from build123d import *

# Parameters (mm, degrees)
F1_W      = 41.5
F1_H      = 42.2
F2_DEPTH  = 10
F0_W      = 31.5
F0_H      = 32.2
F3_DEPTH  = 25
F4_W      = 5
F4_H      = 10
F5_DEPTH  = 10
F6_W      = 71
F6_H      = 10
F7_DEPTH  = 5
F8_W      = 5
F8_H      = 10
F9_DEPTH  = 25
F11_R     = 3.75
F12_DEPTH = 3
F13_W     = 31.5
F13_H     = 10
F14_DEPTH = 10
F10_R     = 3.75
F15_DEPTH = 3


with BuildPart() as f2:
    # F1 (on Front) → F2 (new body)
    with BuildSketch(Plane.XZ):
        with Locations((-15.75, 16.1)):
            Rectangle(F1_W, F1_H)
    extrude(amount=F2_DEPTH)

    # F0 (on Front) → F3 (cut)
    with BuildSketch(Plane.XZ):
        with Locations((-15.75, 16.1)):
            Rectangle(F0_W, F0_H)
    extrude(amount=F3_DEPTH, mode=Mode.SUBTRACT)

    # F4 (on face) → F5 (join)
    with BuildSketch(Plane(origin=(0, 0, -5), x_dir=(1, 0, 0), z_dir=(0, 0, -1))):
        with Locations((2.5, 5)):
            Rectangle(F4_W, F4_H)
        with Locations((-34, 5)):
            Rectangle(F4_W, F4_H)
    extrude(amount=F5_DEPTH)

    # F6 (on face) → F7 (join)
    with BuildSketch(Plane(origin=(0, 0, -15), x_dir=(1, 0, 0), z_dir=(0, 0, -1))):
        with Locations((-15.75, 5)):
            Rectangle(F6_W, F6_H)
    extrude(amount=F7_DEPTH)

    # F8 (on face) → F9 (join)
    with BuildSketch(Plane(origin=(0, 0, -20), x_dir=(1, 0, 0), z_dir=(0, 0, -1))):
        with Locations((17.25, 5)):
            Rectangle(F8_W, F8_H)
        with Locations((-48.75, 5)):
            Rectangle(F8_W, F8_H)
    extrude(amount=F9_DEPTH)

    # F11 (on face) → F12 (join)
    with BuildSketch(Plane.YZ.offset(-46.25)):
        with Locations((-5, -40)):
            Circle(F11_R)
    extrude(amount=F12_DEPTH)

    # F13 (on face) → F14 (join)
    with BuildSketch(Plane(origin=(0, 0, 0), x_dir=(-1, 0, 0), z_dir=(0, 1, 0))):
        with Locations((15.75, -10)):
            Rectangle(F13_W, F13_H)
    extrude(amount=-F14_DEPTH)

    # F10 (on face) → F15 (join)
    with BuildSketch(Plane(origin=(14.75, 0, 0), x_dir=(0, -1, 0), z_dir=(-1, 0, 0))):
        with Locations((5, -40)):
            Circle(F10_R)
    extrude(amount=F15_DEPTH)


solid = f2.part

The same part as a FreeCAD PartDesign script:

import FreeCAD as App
import Part
import Sketcher

doc = App.newDocument("Part")
body = doc.addObject("PartDesign::Body", "Body")

# Sketch on XZ plane
sketch1 = body.newObject("Sketcher::SketchObject", "Sketch")
sketch1.AttachmentSupport = (doc.getObject("XZ_Plane"), [""])
sketch1.MapMode = "FlatFace"
sketch1.addGeometry([
    Part.LineSegment(App.Vector(-36, 37, 0), App.Vector(-36, -5, 0)),
    Part.LineSegment(App.Vector(-36, -5, 0), App.Vector(5, -5, 0)),
    Part.LineSegment(App.Vector(5, -5, 0), App.Vector(5, 37, 0)),
    Part.LineSegment(App.Vector(5, 37, 0), App.Vector(-36, 37, 0)),
], False)
sketch1.addConstraint([
    Sketcher.Constraint("Coincident", 0, 2, 1, 1),
    Sketcher.Constraint("Coincident", 1, 2, 2, 1),
    Sketcher.Constraint("Coincident", 2, 2, 3, 1),
    Sketcher.Constraint("Coincident", 3, 2, 0, 1),
    Sketcher.Constraint("Vertical", 0),
    Sketcher.Constraint("Horizontal", 1),
    Sketcher.Constraint("Vertical", 2),
    Sketcher.Constraint("Horizontal", 3),
    Sketcher.Constraint("DistanceX", 1, 1, 1, 2, 41.5),
    Sketcher.Constraint("DistanceY", 0, 2, 0, 1, 42.2),
    Sketcher.Constraint("DistanceY", 0, 2, -1, 1, 5.0),
    Sketcher.Constraint("DistanceX", -1, 1, 1, 2, 5.0),
])
pad1 = body.newObject("PartDesign::Pad", "Pad")
pad1.Profile = sketch1
pad1.Length = 10

# Sketch on XZ plane
sketch2 = body.newObject("Sketcher::SketchObject", "Sketch001")
sketch2.AttachmentSupport = (doc.getObject("XZ_Plane"), [""])
sketch2.MapMode = "FlatFace"
sketch2.addGeometry([
    Part.LineSegment(App.Vector(-32, 32, 0), App.Vector(-32, 0, 0)),
    Part.LineSegment(App.Vector(-32, 0, 0), App.Vector(0, 0, 0)),
    Part.LineSegment(App.Vector(0, 0, 0), App.Vector(0, 32, 0)),
    Part.LineSegment(App.Vector(0, 32, 0), App.Vector(-32, 32, 0)),
], False)
sketch2.addConstraint([
    Sketcher.Constraint("Coincident", 0, 2, 1, 1),
    Sketcher.Constraint("Coincident", 1, 2, 2, 1),
    Sketcher.Constraint("Coincident", 2, 2, 3, 1),
    Sketcher.Constraint("Coincident", 3, 2, 0, 1),
    Sketcher.Constraint("Vertical", 0),
    Sketcher.Constraint("Horizontal", 1),
    Sketcher.Constraint("Vertical", 2),
    Sketcher.Constraint("Horizontal", 3),
    Sketcher.Constraint("Coincident", 1, 2, -1, 1),
    Sketcher.Constraint("DistanceX", 1, 1, 1, 2, 31.5),
    Sketcher.Constraint("DistanceY", 0, 2, 0, 1, 32.2),
])
pocket1 = body.newObject("PartDesign::Pocket", "Pocket")
pocket1.Profile = sketch2
pocket1.Length = 25
pocket1.Reversed = True

# Sketch on XY plane
sketch3 = body.newObject("Sketcher::SketchObject", "Sketch002")
sketch3.AttachmentSupport = (doc.getObject("XY_Plane"), [""])
sketch3.MapMode = "FlatFace"
sketch3.AttachmentOffset = App.Placement(App.Vector(0, 0, -5), App.Rotation())
sketch3.addGeometry([
    Part.LineSegment(App.Vector(0, -10, 0), App.Vector(0, 0, 0)),  # 0
    Part.LineSegment(App.Vector(0, 0, 0), App.Vector(5, 0, 0)),  # 1
    Part.LineSegment(App.Vector(5, 0, 0), App.Vector(5, -10, 0)),  # 2
    Part.LineSegment(App.Vector(5, -10, 0), App.Vector(0, -10, 0)),  # 3
    Part.LineSegment(App.Vector(-36, -10, 0), App.Vector(-36, 0, 0)),  # 4
    Part.LineSegment(App.Vector(-36, 0, 0), App.Vector(-32, 0, 0)),  # 5
    Part.LineSegment(App.Vector(-32, 0, 0), App.Vector(-32, -10, 0)),  # 6
    Part.LineSegment(App.Vector(-32, -10, 0), App.Vector(-36, -10, 0)),  # 7
], False)
sketch3.addConstraint([
    Sketcher.Constraint("Coincident", 0, 2, 1, 1),
    Sketcher.Constraint("Coincident", 1, 2, 2, 1),
    Sketcher.Constraint("Coincident", 2, 2, 3, 1),
    Sketcher.Constraint("Coincident", 3, 2, 0, 1),
    Sketcher.Constraint("Coincident", 4, 2, 5, 1),
    Sketcher.Constraint("Coincident", 5, 2, 6, 1),
    Sketcher.Constraint("Coincident", 6, 2, 7, 1),
    Sketcher.Constraint("Coincident", 7, 2, 4, 1),
    Sketcher.Constraint("Vertical", 0),
    Sketcher.Constraint("Horizontal", 1),
    Sketcher.Constraint("Vertical", 2),
    Sketcher.Constraint("Horizontal", 3),
    Sketcher.Constraint("Vertical", 4),
    Sketcher.Constraint("Horizontal", 5),
    Sketcher.Constraint("Vertical", 6),
    Sketcher.Constraint("Horizontal", 7),
    Sketcher.Constraint("Coincident", 0, 2, -1, 1),
    Sketcher.Constraint("PointOnObject", 4, 2, -1),
    Sketcher.Constraint("Horizontal", 3, 2, 6, 2),
    Sketcher.Constraint("Equal", 3, 5),
    Sketcher.Constraint("DistanceX", 1, 1, 1, 2, 5.0),
    Sketcher.Constraint("DistanceY", 0, 1, 0, 2, 10.0),
    Sketcher.Constraint("DistanceX", 4, 2, -1, 1, 36.5),
])
pad2 = body.newObject("PartDesign::Pad", "Pad001")
pad2.Profile = sketch3
pad2.Length = 10
pad2.Reversed = True

# Sketch on XY plane
sketch4 = body.newObject("Sketcher::SketchObject", "Sketch003")
sketch4.AttachmentSupport = (doc.getObject("XY_Plane"), [""])
sketch4.MapMode = "FlatFace"
sketch4.AttachmentOffset = App.Placement(App.Vector(0, 0, -15), App.Rotation())
sketch4.addGeometry([
    Part.LineSegment(App.Vector(-51, -10, 0), App.Vector(-51, 0, 0)),
    Part.LineSegment(App.Vector(-51, 0, 0), App.Vector(20, 0, 0)),
    Part.LineSegment(App.Vector(20, 0, 0), App.Vector(20, -10, 0)),
    Part.LineSegment(App.Vector(20, -10, 0), App.Vector(-51, -10, 0)),
], False)
sketch4.addConstraint([
    Sketcher.Constraint("Coincident", 0, 2, 1, 1),
    Sketcher.Constraint("Coincident", 1, 2, 2, 1),
    Sketcher.Constraint("Coincident", 2, 2, 3, 1),
    Sketcher.Constraint("Coincident", 3, 2, 0, 1),
    Sketcher.Constraint("Vertical", 0),
    Sketcher.Constraint("Horizontal", 1),
    Sketcher.Constraint("Vertical", 2),
    Sketcher.Constraint("Horizontal", 3),
    Sketcher.Constraint("PointOnObject", 0, 2, -1),
    Sketcher.Constraint("DistanceX", 1, 1, 1, 2, 71.0),
    Sketcher.Constraint("DistanceY", 0, 1, 0, 2, 10.0),
    Sketcher.Constraint("DistanceX", 0, 2, -1, 1, 51.25),
])
pad3 = body.newObject("PartDesign::Pad", "Pad002")
pad3.Profile = sketch4
pad3.Length = 5
pad3.Reversed = True

# Sketch on XY plane
sketch5 = body.newObject("Sketcher::SketchObject", "Sketch004")
sketch5.AttachmentSupport = (doc.getObject("XY_Plane"), [""])
sketch5.MapMode = "FlatFace"
sketch5.AttachmentOffset = App.Placement(App.Vector(0, 0, -20), App.Rotation())
sketch5.addGeometry([
    Part.LineSegment(App.Vector(15, -10, 0), App.Vector(15, 0, 0)),  # 0
    Part.LineSegment(App.Vector(15, 0, 0), App.Vector(20, 0, 0)),  # 1
    Part.LineSegment(App.Vector(20, 0, 0), App.Vector(20, -10, 0)),  # 2
    Part.LineSegment(App.Vector(20, -10, 0), App.Vector(15, -10, 0)),  # 3
    Part.LineSegment(App.Vector(-51, -10, 0), App.Vector(-51, 0, 0)),  # 4
    Part.LineSegment(App.Vector(-51, 0, 0), App.Vector(-46, 0, 0)),  # 5
    Part.LineSegment(App.Vector(-46, 0, 0), App.Vector(-46, -10, 0)),  # 6
    Part.LineSegment(App.Vector(-46, -10, 0), App.Vector(-51, -10, 0)),  # 7
], False)
sketch5.addConstraint([
    Sketcher.Constraint("Coincident", 0, 2, 1, 1),
    Sketcher.Constraint("Coincident", 1, 2, 2, 1),
    Sketcher.Constraint("Coincident", 2, 2, 3, 1),
    Sketcher.Constraint("Coincident", 3, 2, 0, 1),
    Sketcher.Constraint("Coincident", 4, 2, 5, 1),
    Sketcher.Constraint("Coincident", 5, 2, 6, 1),
    Sketcher.Constraint("Coincident", 6, 2, 7, 1),
    Sketcher.Constraint("Coincident", 7, 2, 4, 1),
    Sketcher.Constraint("Vertical", 0),
    Sketcher.Constraint("Horizontal", 1),
    Sketcher.Constraint("Vertical", 2),
    Sketcher.Constraint("Horizontal", 3),
    Sketcher.Constraint("Vertical", 4),
    Sketcher.Constraint("Horizontal", 5),
    Sketcher.Constraint("Vertical", 6),
    Sketcher.Constraint("Horizontal", 7),
    Sketcher.Constraint("PointOnObject", 0, 2, -1),
    Sketcher.Constraint("PointOnObject", 4, 2, -1),
    Sketcher.Constraint("Horizontal", 3, 2, 6, 2),
    Sketcher.Constraint("Equal", 3, 5),
    Sketcher.Constraint("DistanceX", 1, 1, 1, 2, 5.0),
    Sketcher.Constraint("DistanceY", 0, 1, 0, 2, 10.0),
    Sketcher.Constraint("DistanceX", 4, 2, 0, 2, 66.0),
    Sketcher.Constraint("DistanceX", -1, 1, 0, 2, 14.75),
])
pad4 = body.newObject("PartDesign::Pad", "Pad003")
pad4.Profile = sketch5
pad4.Length = 25
pad4.Reversed = True

# Sketch on YZ plane
sketch6 = body.newObject("Sketcher::SketchObject", "Sketch005")
sketch6.AttachmentSupport = (doc.getObject("YZ_Plane"), [""])
sketch6.MapMode = "FlatFace"
sketch6.AttachmentOffset = App.Placement(App.Vector(0, 0, -46.25), App.Rotation())
sketch6.addGeometry(Part.Circle(App.Vector(-5, -40, 0), App.Vector(0, 0, 1), 3.8), False)
sketch6.addConstraint([
    Sketcher.Constraint("Diameter", 0, 7.5),
    Sketcher.Constraint("DistanceX", 0, 3, -1, 1, 5.0),
    Sketcher.Constraint("DistanceY", 0, 3, -1, 1, 40.0),
])
pad5 = body.newObject("PartDesign::Pad", "Pad004")
pad5.Profile = sketch6
pad5.Length = 3

# Sketch on XZ plane
sketch7 = body.newObject("Sketcher::SketchObject", "Sketch006")
sketch7.AttachmentSupport = (doc.getObject("XZ_Plane"), [""])
sketch7.MapMode = "FlatFace"
sketch7.addGeometry([
    Part.LineSegment(App.Vector(0, -5, 0), App.Vector(0, -15, 0)),
    Part.LineSegment(App.Vector(0, -15, 0), App.Vector(-32, -15, 0)),
    Part.LineSegment(App.Vector(-32, -15, 0), App.Vector(-32, -5, 0)),
    Part.LineSegment(App.Vector(-32, -5, 0), App.Vector(0, -5, 0)),
], False)
sketch7.addConstraint([
    Sketcher.Constraint("Coincident", 0, 2, 1, 1),
    Sketcher.Constraint("Coincident", 1, 2, 2, 1),
    Sketcher.Constraint("Coincident", 2, 2, 3, 1),
    Sketcher.Constraint("Coincident", 3, 2, 0, 1),
    Sketcher.Constraint("Vertical", 0),
    Sketcher.Constraint("Horizontal", 1),
    Sketcher.Constraint("Vertical", 2),
    Sketcher.Constraint("Horizontal", 3),
    Sketcher.Constraint("PointOnObject", 0, 2, -2),
    Sketcher.Constraint("DistanceY", 0, 2, 0, 1, 10.0),
    Sketcher.Constraint("DistanceX", 1, 2, 1, 1, 31.5),
    Sketcher.Constraint("DistanceY", 0, 2, -1, 1, 15.0),
])
pad6 = body.newObject("PartDesign::Pad", "Pad005")
pad6.Profile = sketch7
pad6.Length = 10

# Sketch on YZ plane
sketch8 = body.newObject("Sketcher::SketchObject", "Sketch007")
sketch8.AttachmentSupport = (doc.getObject("YZ_Plane"), [""])
sketch8.MapMode = "FlatFace"
sketch8.AttachmentOffset = App.Placement(App.Vector(0, 0, 14.75), App.Rotation())
sketch8.addGeometry(Part.Circle(App.Vector(-5, -40, 0), App.Vector(0, 0, 1), 3.8), False)
sketch8.addConstraint([
    Sketcher.Constraint("Diameter", 0, 7.5),
    Sketcher.Constraint("DistanceX", 0, 3, -1, 1, 5.0),
    Sketcher.Constraint("DistanceY", 0, 3, -1, 1, 40.0),
])
pad7 = body.newObject("PartDesign::Pad", "Pad006")
pad7.Profile = sketch8
pad7.Length = 3
pad7.Reversed = True

doc.recompute()
